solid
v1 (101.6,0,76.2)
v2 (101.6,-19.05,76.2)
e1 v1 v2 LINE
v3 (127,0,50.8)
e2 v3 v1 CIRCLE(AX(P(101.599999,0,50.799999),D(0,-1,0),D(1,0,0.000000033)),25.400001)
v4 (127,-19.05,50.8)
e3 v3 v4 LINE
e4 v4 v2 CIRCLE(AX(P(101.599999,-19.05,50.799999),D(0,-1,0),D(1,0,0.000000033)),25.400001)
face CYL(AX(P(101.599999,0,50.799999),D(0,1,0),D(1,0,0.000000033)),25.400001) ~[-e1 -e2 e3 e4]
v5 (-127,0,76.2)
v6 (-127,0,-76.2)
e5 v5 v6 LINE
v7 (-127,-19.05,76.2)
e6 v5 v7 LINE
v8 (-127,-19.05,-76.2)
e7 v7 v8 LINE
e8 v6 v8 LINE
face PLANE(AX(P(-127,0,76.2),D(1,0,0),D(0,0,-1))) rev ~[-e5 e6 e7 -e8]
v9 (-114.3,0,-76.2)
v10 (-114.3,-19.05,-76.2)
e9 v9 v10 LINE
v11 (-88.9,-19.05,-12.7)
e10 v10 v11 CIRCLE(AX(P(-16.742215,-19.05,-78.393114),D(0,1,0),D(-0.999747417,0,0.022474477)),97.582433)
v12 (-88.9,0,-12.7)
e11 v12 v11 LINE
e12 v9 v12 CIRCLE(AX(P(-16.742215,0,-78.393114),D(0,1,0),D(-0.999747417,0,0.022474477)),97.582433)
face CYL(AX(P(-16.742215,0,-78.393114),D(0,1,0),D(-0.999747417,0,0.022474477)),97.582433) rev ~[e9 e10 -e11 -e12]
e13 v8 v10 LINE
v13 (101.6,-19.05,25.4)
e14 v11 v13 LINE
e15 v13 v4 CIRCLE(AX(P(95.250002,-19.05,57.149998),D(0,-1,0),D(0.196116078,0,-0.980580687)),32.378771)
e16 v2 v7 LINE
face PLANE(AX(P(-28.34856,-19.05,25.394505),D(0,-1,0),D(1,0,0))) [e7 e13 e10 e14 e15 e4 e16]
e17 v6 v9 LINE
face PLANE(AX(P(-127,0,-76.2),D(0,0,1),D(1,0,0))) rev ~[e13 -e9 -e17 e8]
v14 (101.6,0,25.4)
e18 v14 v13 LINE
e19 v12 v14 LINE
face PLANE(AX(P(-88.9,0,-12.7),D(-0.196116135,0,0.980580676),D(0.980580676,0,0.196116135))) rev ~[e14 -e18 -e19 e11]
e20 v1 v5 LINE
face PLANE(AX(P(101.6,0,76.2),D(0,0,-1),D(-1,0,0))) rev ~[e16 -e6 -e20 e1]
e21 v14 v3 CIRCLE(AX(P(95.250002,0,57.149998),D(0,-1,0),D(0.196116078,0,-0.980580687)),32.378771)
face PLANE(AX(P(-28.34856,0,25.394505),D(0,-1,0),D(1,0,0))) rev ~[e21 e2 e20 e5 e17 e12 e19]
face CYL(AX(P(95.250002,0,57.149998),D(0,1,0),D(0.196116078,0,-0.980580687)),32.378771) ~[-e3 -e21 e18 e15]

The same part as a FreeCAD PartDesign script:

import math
import FreeCAD as App
import Part
import Sketcher

V = App.Vector
Q = App.Units.Quantity

doc = App.newDocument("Part")
params = doc.addObject("Spreadsheet::Sheet", "Params")
for row, (alias, value) in enumerate([
    ("sketch1_radius", "1 in"),
    ("sketch1_width", "9 in"),
    ("sketch1_height", "6 in"),
    ("sketch1_width2", "0.5 in"),
    ("pad1_length", "0.75 in"),
], start=1):
    params.set(f"A{row}", alias)
    params.set(f"B{row}", "=" + value)
    params.setAlias(f"B{row}", alias)

body = doc.addObject("PartDesign::Body", "Body")

sketch1 = body.newObject("Sketcher::SketchObject", "Sketch")
sketch1.AttachmentSupport = (doc.getObject("XZ_Plane"), [""])
sketch1.MapMode = "FlatFace"
sketch1.addGeometry([
    Part.LineSegment(V(101.6, 76.2, 0), V(-127, 76.2, 0)),
    Part.LineSegment(V(-127, 76.2, 0), V(-127, -76.2, 0)),
    Part.LineSegment(V(-127, -76.2, 0), V(-114.3, -76.2, 0)),
    Part.ArcOfCircle(Part.Circle(V(-16.742215, -78.393114, 0), V(0, 0, 1), 97.582433), math.radians(137.684982), math.radians(178.712199)),
    Part.LineSegment(V(-88.9, -12.7, 0), V(101.6, 25.4, 0)),
    Part.ArcOfCircle(Part.Circle(V(95.250002, 57.149998, 0), V(0, 0, 1), 32.378771), math.radians(-78.690071), math.radians(-11.309929)),
    Part.ArcOfCircle(Part.Circle(V(101.599999, 50.799999, 0), V(0, 0, 1), 25.400001), math.radians(0.000002), math.radians(89.999998)),
], False)
sketch1.addConstraint([
    Sketcher.Constraint("Coincident", 0, 2, 1, 1),
    Sketcher.Constraint("Coincident", 1, 2, 2, 1),
    Sketcher.Constraint("Coincident", 2, 2, 3, 2),
    Sketcher.Constraint("Coincident", 3, 1, 4, 1),
    Sketcher.Constraint("Tangent", 4, 2, 5, 1),
    Sketcher.Constraint("Coincident", 5, 2, 6, 1),
    Sketcher.Constraint("Tangent", 6, 2, 0, 1),
    Sketcher.Constraint("Horizontal", 0),
    Sketcher.Constraint("Vertical", 1),
    Sketcher.Constraint("Horizontal", 2),
    Sketcher.Constraint("Horizontal", 6, 3, 5, 2),
    Sketcher.Constraint("Vertical", 6, 3, 4, 2),
    Sketcher.Constraint("Radius", 6, Q("1 in")),
    Sketcher.Constraint("DistanceX", 0, 2, 0, 1, Q("9 in")),
    Sketcher.Constraint("DistanceY", 1, 2, 1, 1, Q("6 in")),
    Sketcher.Constraint("DistanceX", 2, 1, 2, 2, Q("0.5 in")),
    Sketcher.Constraint("DistanceX", -1, 1, 6, 3, Q("4 in")),
    Sketcher.Constraint("DistanceY", -1, 1, 6, 3, Q("2 in")),
    Sketcher.Constraint("DistanceY", -1, 1, 4, 2, Q("1 in")),
    Sketcher.Constraint("DistanceX", 2, 2, 3, 1, Q("1 in")),
    Sketcher.Constraint("DistanceY", 3, 1, -1, 1, Q("0.5 in")),
    Sketcher.Constraint("Radius", 3, Q("97.582433 mm")),
])
sketch1.setExpression("Constraints[12]", "Params.sketch1_radius")
sketch1.setExpression("Constraints[13]", "Params.sketch1_width")
sketch1.setExpression("Constraints[14]", "Params.sketch1_height")
sketch1.setExpression("Constraints[15]", "Params.sketch1_width2")
pad1 = body.newObject("PartDesign::Pad", "Pad")
pad1.Profile = sketch1
pad1.setExpression("Length", "Params.pad1_length")

doc.recompute()
